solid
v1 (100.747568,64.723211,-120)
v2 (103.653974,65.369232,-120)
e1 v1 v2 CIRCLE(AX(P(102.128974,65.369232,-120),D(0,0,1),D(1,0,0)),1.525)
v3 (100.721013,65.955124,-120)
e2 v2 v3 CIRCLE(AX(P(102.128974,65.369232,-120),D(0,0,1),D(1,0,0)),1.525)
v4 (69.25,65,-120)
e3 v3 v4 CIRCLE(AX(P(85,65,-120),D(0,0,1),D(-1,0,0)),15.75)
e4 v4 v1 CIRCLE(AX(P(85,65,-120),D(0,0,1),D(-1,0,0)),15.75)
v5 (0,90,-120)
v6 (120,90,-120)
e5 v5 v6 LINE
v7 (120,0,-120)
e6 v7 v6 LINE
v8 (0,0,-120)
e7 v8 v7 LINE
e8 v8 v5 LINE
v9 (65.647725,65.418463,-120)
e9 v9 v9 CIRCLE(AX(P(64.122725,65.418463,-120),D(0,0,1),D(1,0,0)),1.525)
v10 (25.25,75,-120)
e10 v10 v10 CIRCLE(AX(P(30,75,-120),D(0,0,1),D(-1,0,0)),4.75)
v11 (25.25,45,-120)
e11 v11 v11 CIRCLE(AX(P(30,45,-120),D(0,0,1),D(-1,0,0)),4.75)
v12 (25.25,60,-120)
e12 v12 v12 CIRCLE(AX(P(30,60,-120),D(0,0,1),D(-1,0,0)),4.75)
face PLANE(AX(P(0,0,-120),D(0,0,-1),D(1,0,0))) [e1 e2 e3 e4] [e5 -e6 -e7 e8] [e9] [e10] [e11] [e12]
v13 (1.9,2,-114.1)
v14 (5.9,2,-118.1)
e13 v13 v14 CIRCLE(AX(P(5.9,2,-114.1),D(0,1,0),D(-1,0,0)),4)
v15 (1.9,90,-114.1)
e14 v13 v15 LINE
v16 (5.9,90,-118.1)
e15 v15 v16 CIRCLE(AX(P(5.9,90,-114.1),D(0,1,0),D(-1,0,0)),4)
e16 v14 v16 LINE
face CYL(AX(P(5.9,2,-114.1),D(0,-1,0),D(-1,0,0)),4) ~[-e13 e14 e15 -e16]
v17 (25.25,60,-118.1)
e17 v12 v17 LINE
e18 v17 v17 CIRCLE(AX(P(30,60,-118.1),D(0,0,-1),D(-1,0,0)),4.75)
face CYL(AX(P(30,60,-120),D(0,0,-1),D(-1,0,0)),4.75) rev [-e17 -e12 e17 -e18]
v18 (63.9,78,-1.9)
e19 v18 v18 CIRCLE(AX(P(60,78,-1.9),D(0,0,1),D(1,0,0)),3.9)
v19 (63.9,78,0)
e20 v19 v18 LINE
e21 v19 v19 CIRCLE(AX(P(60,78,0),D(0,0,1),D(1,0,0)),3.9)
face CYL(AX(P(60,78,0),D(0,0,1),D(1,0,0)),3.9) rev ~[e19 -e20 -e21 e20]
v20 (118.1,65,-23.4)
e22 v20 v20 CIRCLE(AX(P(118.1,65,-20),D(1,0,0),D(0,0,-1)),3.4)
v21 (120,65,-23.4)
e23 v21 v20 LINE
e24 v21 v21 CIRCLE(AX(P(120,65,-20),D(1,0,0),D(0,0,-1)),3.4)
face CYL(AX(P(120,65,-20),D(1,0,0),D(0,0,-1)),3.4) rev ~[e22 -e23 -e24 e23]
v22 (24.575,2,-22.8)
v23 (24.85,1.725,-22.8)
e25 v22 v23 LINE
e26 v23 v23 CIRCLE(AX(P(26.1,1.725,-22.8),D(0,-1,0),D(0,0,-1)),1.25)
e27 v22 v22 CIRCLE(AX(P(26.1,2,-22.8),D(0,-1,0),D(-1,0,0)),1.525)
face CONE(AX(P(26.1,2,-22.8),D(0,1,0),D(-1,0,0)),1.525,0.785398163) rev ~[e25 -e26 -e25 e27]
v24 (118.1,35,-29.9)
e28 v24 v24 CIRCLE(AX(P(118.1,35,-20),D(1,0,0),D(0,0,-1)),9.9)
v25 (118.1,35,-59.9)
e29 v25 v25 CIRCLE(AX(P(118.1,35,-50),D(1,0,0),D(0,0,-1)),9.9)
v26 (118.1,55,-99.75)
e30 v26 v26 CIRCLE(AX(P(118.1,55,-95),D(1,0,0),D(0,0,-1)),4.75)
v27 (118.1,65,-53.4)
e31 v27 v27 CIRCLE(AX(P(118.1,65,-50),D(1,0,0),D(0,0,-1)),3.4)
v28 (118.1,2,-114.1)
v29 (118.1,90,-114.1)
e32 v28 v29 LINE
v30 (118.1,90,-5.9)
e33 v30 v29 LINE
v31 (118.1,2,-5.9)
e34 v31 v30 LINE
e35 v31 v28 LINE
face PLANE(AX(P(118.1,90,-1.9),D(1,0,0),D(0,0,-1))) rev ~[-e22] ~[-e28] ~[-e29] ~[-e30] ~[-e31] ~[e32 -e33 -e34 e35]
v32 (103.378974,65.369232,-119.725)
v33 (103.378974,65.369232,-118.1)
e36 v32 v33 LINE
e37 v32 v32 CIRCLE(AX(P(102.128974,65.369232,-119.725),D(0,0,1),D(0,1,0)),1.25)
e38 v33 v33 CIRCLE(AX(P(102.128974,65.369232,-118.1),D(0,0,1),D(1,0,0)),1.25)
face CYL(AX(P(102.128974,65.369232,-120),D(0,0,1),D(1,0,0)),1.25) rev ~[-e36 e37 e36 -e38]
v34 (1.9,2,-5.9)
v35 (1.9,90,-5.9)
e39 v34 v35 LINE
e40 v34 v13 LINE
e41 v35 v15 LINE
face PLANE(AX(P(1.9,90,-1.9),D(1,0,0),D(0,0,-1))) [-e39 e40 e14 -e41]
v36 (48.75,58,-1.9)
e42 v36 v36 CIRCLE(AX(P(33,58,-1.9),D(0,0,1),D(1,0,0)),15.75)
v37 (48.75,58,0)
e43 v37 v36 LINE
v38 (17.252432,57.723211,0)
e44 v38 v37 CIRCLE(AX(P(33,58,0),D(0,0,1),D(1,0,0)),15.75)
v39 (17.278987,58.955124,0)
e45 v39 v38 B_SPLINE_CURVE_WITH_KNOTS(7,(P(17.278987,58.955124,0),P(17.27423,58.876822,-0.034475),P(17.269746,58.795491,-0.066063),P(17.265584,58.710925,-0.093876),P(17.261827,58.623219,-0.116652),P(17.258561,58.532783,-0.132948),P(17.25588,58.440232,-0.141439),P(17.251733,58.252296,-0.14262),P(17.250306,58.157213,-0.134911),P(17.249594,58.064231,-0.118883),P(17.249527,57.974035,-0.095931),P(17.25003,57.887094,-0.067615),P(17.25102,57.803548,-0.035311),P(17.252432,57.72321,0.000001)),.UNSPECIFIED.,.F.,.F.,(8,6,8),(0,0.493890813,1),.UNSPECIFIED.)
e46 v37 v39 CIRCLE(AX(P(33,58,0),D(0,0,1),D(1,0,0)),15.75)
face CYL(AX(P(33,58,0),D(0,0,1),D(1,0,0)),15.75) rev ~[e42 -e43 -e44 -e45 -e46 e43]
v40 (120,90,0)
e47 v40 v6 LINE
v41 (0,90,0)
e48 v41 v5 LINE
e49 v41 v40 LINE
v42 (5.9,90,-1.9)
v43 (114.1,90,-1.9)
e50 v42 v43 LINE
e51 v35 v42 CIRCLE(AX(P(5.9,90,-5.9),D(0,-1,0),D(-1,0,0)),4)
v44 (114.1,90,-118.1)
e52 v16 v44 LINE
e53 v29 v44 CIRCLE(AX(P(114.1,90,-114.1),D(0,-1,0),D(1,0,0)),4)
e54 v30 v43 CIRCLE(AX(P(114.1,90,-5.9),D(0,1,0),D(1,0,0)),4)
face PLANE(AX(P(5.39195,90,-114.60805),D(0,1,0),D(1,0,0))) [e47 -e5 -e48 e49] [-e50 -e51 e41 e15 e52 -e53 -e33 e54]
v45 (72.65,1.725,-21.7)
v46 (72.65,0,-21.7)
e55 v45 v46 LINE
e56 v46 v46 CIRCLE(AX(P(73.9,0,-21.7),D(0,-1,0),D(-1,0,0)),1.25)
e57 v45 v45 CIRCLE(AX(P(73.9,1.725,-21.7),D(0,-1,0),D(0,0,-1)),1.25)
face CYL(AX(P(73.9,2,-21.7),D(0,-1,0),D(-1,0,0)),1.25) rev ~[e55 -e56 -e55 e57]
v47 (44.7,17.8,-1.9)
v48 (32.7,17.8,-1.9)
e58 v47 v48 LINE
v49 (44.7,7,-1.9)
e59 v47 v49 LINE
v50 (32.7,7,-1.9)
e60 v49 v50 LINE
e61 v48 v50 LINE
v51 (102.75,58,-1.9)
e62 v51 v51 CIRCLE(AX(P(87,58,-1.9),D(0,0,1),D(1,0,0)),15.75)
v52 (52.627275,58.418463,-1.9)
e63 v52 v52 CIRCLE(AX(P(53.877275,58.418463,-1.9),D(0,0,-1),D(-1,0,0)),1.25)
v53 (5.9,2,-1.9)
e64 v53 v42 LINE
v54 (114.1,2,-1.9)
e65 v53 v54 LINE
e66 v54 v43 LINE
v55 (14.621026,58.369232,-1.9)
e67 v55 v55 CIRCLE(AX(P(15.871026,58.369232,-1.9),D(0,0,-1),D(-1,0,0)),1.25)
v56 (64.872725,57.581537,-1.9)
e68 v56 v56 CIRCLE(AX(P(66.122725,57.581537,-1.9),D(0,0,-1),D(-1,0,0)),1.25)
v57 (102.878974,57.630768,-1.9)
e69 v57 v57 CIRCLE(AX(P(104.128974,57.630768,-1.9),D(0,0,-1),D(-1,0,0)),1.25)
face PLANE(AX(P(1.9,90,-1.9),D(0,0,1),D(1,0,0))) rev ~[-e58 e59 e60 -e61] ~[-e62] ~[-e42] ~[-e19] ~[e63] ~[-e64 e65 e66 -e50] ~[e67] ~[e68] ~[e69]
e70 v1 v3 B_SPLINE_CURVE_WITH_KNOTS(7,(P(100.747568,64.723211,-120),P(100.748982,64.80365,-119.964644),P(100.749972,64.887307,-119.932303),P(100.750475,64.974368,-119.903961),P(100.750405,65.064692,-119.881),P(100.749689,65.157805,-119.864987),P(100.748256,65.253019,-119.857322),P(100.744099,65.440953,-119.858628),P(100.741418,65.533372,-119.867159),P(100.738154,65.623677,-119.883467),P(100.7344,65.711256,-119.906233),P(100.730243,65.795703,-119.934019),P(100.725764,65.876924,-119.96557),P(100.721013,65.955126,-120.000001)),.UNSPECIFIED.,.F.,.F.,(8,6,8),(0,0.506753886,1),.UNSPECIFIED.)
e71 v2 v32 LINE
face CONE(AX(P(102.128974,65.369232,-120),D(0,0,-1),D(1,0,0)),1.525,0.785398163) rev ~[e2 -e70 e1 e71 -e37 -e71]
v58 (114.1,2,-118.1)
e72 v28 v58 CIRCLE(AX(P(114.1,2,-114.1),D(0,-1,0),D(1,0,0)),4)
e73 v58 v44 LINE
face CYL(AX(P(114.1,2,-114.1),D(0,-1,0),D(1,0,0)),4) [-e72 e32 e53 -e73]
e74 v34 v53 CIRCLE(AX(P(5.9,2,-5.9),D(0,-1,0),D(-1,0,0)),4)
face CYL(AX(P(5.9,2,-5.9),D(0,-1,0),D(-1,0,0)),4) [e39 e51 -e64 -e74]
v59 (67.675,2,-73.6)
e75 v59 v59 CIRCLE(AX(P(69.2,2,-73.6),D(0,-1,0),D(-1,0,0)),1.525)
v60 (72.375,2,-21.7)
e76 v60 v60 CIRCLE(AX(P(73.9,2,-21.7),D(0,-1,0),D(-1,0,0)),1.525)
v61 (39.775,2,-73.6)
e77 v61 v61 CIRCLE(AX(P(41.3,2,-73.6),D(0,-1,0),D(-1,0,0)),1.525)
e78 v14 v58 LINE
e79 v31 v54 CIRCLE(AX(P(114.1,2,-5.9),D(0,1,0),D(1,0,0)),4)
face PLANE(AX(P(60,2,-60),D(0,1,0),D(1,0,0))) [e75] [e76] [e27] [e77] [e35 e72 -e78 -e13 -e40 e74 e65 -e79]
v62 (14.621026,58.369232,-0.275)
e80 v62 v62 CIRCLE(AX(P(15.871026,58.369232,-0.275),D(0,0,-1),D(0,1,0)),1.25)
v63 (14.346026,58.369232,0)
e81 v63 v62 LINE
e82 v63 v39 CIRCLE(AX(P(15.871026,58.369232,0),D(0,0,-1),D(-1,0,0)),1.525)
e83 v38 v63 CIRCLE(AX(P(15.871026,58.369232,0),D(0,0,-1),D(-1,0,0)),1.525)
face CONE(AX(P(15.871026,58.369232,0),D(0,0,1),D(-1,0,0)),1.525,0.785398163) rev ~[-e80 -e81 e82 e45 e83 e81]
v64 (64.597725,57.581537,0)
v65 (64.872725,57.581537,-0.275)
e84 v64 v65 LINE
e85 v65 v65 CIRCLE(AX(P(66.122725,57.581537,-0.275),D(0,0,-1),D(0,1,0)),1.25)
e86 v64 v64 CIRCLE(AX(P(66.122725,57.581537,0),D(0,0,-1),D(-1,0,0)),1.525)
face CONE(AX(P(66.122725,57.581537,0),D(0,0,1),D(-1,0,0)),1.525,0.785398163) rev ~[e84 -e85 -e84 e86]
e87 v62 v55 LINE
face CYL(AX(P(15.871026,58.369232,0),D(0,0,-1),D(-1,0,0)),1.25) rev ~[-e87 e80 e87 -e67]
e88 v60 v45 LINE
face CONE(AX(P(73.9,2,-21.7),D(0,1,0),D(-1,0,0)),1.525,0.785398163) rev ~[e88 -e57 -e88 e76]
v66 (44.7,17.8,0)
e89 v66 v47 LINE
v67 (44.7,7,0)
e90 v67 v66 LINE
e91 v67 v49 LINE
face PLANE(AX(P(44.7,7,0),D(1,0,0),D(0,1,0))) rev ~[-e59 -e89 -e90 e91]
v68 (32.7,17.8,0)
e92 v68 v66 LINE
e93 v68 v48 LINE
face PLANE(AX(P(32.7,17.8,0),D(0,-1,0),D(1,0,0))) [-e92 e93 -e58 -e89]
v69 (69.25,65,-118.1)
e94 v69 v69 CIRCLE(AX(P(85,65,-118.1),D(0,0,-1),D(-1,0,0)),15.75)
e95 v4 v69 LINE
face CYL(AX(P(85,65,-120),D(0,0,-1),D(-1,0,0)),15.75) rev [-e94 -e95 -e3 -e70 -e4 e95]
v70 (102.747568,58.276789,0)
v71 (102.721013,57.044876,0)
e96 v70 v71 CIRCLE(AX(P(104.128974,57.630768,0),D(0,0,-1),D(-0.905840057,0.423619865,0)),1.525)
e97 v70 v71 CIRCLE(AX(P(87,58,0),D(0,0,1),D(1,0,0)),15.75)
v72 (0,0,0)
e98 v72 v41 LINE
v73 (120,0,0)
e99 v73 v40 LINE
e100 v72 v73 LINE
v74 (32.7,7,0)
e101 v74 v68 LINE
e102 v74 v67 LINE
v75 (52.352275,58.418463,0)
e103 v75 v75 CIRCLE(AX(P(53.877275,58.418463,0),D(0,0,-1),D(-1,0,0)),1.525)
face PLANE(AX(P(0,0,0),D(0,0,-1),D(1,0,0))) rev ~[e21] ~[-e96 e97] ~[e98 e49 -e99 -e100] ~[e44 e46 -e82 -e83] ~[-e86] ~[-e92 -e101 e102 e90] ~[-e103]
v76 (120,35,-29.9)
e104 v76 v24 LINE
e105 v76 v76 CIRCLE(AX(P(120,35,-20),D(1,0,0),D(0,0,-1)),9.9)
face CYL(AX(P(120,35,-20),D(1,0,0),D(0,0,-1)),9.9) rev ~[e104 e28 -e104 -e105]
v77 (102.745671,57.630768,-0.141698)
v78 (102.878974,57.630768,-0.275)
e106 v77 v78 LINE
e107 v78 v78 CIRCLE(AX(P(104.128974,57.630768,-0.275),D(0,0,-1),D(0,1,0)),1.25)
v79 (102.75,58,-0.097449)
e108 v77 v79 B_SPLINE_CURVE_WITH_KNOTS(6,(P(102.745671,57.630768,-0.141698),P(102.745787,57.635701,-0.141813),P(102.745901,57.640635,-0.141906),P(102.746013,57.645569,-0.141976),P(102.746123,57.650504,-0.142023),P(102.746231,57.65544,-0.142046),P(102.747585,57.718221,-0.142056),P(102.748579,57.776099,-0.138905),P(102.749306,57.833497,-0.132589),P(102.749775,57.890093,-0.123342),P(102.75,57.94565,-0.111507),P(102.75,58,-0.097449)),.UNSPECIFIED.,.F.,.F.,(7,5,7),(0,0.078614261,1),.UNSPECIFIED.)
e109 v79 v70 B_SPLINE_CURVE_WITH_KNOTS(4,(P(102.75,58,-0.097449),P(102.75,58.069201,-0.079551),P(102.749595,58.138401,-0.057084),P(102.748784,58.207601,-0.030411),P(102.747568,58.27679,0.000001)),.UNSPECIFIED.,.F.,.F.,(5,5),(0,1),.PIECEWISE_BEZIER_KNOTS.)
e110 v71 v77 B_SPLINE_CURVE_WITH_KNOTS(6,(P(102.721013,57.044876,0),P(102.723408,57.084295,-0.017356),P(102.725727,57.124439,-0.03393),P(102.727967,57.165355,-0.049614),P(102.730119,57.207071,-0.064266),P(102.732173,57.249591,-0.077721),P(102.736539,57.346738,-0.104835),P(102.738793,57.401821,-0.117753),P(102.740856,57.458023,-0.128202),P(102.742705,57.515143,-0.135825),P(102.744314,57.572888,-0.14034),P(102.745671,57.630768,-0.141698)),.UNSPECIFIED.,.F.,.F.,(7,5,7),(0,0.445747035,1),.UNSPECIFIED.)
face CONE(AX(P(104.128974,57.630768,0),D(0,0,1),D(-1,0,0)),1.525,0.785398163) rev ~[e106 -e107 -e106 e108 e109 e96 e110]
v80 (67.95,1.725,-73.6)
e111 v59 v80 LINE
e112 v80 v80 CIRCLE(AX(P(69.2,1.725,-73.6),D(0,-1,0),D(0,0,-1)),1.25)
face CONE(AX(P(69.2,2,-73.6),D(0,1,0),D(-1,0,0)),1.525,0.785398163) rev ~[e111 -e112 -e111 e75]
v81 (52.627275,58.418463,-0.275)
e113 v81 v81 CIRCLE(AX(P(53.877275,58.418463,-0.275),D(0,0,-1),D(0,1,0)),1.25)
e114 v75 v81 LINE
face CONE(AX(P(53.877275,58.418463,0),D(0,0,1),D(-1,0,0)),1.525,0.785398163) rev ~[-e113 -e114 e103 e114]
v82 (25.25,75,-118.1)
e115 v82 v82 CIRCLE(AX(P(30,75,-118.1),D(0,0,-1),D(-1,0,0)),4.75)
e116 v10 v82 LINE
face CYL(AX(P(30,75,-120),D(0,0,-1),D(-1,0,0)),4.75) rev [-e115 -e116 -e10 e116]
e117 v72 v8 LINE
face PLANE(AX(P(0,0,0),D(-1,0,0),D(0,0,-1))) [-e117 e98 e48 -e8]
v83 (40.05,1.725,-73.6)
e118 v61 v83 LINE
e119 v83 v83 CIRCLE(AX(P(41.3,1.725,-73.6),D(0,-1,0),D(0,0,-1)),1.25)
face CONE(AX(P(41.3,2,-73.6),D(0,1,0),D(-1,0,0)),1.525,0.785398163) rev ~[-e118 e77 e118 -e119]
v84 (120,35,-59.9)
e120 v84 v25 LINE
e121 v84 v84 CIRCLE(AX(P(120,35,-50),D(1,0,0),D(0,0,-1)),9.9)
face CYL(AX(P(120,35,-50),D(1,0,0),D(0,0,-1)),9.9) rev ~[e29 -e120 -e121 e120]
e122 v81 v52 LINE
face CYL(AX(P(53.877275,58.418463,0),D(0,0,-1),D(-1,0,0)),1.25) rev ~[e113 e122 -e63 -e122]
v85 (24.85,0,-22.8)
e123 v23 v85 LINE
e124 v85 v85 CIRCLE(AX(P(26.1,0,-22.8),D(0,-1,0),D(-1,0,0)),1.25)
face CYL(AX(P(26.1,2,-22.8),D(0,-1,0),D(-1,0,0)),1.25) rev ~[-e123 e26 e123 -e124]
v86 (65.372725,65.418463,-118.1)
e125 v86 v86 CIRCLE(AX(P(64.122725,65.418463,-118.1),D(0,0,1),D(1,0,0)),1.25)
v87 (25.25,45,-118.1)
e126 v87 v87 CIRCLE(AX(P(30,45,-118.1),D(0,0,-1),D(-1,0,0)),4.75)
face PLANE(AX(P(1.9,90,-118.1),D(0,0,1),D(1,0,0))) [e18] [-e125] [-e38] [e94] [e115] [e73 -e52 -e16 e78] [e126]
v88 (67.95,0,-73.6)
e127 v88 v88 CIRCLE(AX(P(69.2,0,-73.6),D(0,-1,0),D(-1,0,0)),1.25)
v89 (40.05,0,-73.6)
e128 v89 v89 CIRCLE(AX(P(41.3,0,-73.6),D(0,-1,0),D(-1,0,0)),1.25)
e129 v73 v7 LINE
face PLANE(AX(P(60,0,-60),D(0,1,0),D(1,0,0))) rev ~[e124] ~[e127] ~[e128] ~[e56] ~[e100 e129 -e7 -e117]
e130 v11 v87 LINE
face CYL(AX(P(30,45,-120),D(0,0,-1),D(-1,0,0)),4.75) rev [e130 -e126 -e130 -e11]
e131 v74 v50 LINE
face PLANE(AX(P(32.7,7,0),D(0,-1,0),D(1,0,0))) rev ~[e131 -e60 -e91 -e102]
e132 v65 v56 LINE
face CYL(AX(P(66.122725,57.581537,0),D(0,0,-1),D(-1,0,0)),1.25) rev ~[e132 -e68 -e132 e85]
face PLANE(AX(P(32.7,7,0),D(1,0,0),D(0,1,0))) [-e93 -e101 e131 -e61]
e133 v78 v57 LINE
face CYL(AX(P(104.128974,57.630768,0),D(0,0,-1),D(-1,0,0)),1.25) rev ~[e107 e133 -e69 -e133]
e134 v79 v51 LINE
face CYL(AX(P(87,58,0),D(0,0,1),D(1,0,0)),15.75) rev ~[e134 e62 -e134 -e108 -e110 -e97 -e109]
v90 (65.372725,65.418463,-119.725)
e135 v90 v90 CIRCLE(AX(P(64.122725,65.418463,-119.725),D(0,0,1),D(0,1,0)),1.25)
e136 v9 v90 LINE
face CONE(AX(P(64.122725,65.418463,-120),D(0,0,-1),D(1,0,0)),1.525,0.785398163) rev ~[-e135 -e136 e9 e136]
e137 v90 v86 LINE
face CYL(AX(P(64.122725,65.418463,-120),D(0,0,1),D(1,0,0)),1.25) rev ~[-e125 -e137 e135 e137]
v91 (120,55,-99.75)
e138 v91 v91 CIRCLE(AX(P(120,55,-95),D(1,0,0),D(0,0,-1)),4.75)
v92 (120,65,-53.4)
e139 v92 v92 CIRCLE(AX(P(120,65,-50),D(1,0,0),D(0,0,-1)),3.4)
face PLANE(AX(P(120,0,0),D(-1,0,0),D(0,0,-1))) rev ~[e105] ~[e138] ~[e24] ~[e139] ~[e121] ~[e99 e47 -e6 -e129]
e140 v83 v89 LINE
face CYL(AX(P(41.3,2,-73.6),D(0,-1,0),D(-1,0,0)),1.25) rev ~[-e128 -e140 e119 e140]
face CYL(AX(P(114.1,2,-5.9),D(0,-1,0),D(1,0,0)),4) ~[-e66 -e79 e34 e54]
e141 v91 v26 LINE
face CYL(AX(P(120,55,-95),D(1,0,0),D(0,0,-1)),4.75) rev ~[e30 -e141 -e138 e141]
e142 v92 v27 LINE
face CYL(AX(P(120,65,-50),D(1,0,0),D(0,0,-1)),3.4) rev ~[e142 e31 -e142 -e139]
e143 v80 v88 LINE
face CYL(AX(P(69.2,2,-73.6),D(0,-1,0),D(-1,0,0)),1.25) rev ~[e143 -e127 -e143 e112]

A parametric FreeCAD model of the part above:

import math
import FreeCAD as App
import Part
import Sketcher
Q = App.Units.Quantity


def add_polygon(sketch, points):
    """Adds a closed chain of lines whose ends are joined by coincident constraints."""
    first, n = sketch.GeometryCount, len(points)
    for a, b in zip(points, points[1:] + points[:1]):
        sketch.addGeometry(Part.LineSegment(App.Vector(*a, 0), App.Vector(*b, 0)), False)
    for i in range(n):
        sketch.addConstraint(Sketcher.Constraint("Coincident", first + i, 2, first + (i + 1) % n, 1))

doc = App.newDocument("Part")
body = doc.addObject("PartDesign::Body", "Body")

sketch1 = body.newObject("Sketcher::SketchObject", "Sketch")
sketch1.AttachmentSupport = (doc.getObject("XZ_Plane"), [""])
sketch1.MapMode = "FlatFace"
add_polygon(sketch1, [(0, -120), (0, 0), (120, 0), (120, -120)])
sketch1.addConstraint([
    Sketcher.Constraint("Vertical", 0),
    Sketcher.Constraint("Horizontal", 1),
    Sketcher.Constraint("Vertical", 2),
    Sketcher.Constraint("Horizontal", 3),
    Sketcher.Constraint("Coincident", 0, 2, -1, 1),
    Sketcher.Constraint("Equal", 3, 0),
    Sketcher.Constraint("DistanceX", 1, 1, 1, 2, Q("120 mm")),
])
pad1 = body.newObject("PartDesign::Pad", "Pad")
pad1.Profile = sketch1
pad1.Length = 90
pad1.Reversed = True

sketch2 = body.newObject("Sketcher::SketchObject", "Sketch001")
sketch2.AttachmentSupport = (doc.getObject("XZ_Plane"), [""])
sketch2.MapMode = "FlatFace"
sketch2.AttachmentOffset = App.Placement(App.Vector(0, 0, -90), App.Rotation())
add_polygon(sketch2, [(2, -118), (2, -2), (118, -2), (118, -118)])
sketch2.addConstraint([
    Sketcher.Constraint("Vertical", 0),
    Sketcher.Constraint("Horizontal", 1),
    Sketcher.Constraint("Vertical", 2),
    Sketcher.Constraint("Horizontal", 3),
    Sketcher.Constraint("Equal", 3, 0),
    Sketcher.Constraint("DistanceX", 1, 1, 1, 2, Q("116.2 mm")),
    Sketcher.Constraint("DistanceX", -1, 1, 0, 2, Q("1.9 mm")),
    Sketcher.Constraint("DistanceY", 0, 2, -1, 1, Q("1.9 mm")),
])
pocket1 = body.newObject("PartDesign::Pocket", "Pocket")
pocket1.Profile = sketch2
pocket1.Length = 88
pocket1.Reversed = True

sketch3 = body.newObject("Sketcher::SketchObject", "Sketch002")
sketch3.AttachmentSupport = (doc.getObject("XZ_Plane"), [""])
sketch3.MapMode = "FlatFace"
sketch3.AttachmentOffset = App.Placement(App.Vector(0, 0, -2), App.Rotation())
sketch3.addGeometry([
    Part.LineSegment(App.Vector(5.9, -118.1, 0), App.Vector(1.9, -118.1, 0)),
    Part.LineSegment(App.Vector(1.9, -118.1, 0), App.Vector(1.9, -114.1, 0)),
    Part.ArcOfCircle(Part.Circle(App.Vector(5.9, -114.1, 0), App.Vector(0, 0, 1), 4), math.radians(-90), math.radians(180)),
    Part.LineSegment(App.Vector(118.1, -118.1, 0), App.Vector(114.1, -118.1, 0)),
    Part.ArcOfCircle(Part.Circle(App.Vector(114.1, -114.1, 0), App.Vector(0, 0, 1), 4), math.radians(0), math.radians(270)),
    Part.LineSegment(App.Vector(118.1, -114.1, 0), App.Vector(118.1, -118.1, 0)),
    Part.LineSegment(App.Vector(118.1, -1.9, 0), App.Vector(118.1, -5.9, 0)),
    Part.ArcOfCircle(Part.Circle(App.Vector(114.1, -5.9, 0), App.Vector(0, 0, 1), 4), math.radians(90), math.radians(360)),
    Part.LineSegment(App.Vector(114.1, -1.9, 0), App.Vector(118.1, -1.9, 0)),
    Part.LineSegment(App.Vector(1.9, -5.9, 0), App.Vector(1.9, -1.9, 0)),
    Part.LineSegment(App.Vector(1.9, -1.9, 0), App.Vector(5.9, -1.9, 0)),
    Part.ArcOfCircle(Part.Circle(App.Vector(5.9, -5.9, 0), App.Vector(0, 0, 1), 4), math.radians(180), math.radians(450)),
], False)
sketch3.addConstraint([
    Sketcher.Constraint("Coincident", 0, 2, 1, 1),
    Sketcher.Constraint("Tangent", 1, 2, 2, 2),
    Sketcher.Constraint("Tangent", 2, 1, 0, 1),
    Sketcher.Constraint("Tangent", 3, 2, 4, 2),
    Sketcher.Constraint("Tangent", 4, 1, 5, 1),
    Sketcher.Constraint("Coincident", 5, 2, 3, 1),
    Sketcher.Constraint("Tangent", 6, 2, 7, 2),
    Sketcher.Constraint("Tangent", 7, 1, 8, 1),
    Sketcher.Constraint("Coincident", 8, 2, 6, 1),
    Sketcher.Constraint("Coincident", 9, 2, 10, 1),
    Sketcher.Constraint("Tangent", 10, 2, 11, 2),
    Sketcher.Constraint("Tangent", 11, 1, 9, 1),
    Sketcher.Constraint("Horizontal", 0),
    Sketcher.Constraint("Vertical", 1),
    Sketcher.Constraint("Horizontal", 3),
    Sketcher.Constraint("Vertical", 5),
    Sketcher.Constraint("Vertical", 6),
    Sketcher.Constraint("Horizontal", 8),
    Sketcher.Constraint("Vertical", 9),
    Sketcher.Constraint("Horizontal", 10),
    Sketcher.Constraint("Equal", 2, 4),
    Sketcher.Constraint("Equal", 4, 7),
    Sketcher.Constraint("Equal", 7, 11),
    Sketcher.Constraint("Horizontal", 2, 3, 4, 3),
    Sketcher.Constraint("Horizontal", 7, 3, 11, 3),
    Sketcher.Constraint("Vertical", 4, 3, 7, 3),
    Sketcher.Constraint("Vertical", 2, 3, 11, 3),
    Sketcher.Constraint("Radius", 2, Q("4 mm")),
    Sketcher.Constraint("DistanceX", -1, 1, 2, 3, Q("5.9 mm")),
    Sketcher.Constraint("DistanceY", 2, 3, -1, 1, Q("114.1 mm")),
    Sketcher.Constraint("DistanceX", -1, 1, 4, 3, Q("114.1 mm")),
    Sketcher.Constraint("DistanceY", 7, 3, -1, 1, Q("5.9 mm")),
])
pad2 = body.newObject("PartDesign::Pad", "Pad001")
pad2.Profile = sketch3
pad2.Length = 88
pad2.Reversed = True

sketch4 = body.newObject("Sketcher::SketchObject", "Sketch003")
sketch4.AttachmentSupport = (doc.getObject("XY_Plane"), [""])
sketch4.MapMode = "FlatFace"
sketch4.AttachmentOffset = App.Placement(App.Vector(0, 0, -120), App.Rotation())
sketch4.addGeometry(Part.Circle(App.Vector(30, 75, 0), App.Vector(0, 0, 1), 4.8), False)
sketch4.addConstraint([
    Sketcher.Constraint("Diameter", 0, Q("9.5 mm")),
    Sketcher.Constraint("DistanceX", -1, 1, 0, 3, Q("30 mm")),
    Sketcher.Constraint("DistanceY", -1, 1, 0, 3, Q("75 mm")),
])
pocket2 = body.newObject("PartDesign::Pocket", "Pocket001")
pocket2.Profile = sketch4
pocket2.Type = "UpToFirst"
pocket2.Reversed = True

sketch5 = body.newObject("Sketcher::SketchObject", "Sketch004")
sketch5.AttachmentSupport = (doc.getObject("XY_Plane"), [""])
sketch5.MapMode = "FlatFace"
sketch5.AttachmentOffset = App.Placement(App.Vector(0, 0, -120), App.Rotation())
sketch5.addGeometry(Part.Circle(App.Vector(85, 65, 0), App.Vector(0, 0, 1), 16), False)
sketch5.addConstraint([
    Sketcher.Constraint("Diameter", 0, Q("31.5 mm")),
    Sketcher.Constraint("DistanceX", -1, 1, 0, 3, Q("85 mm")),
    Sketcher.Constraint("DistanceY", -1, 1, 0, 3, Q("65 mm")),
])
pocket3 = body.newObject("PartDesign::Pocket", "Pocket002")
pocket3.Profile = sketch5
pocket3.Type = "UpToFirst"
pocket3.Reversed = True

sketch6 = body.newObject("Sketcher::SketchObject", "Sketch005")
sketch6.AttachmentSupport = (doc.getObject("XY_Plane"), [""])
sketch6.MapMode = "FlatFace"
sketch6.AttachmentOffset = App.Placement(App.Vector(0, 0, -120), App.Rotation())
sketch6.addGeometry(Part.Circle(App.Vector(30, 60, 0), App.Vector(0, 0, 1), 4.8), False)
sketch6.addConstraint([
    Sketcher.Constraint("Diameter", 0, Q("9.5 mm")),
    Sketcher.Constraint("DistanceX", -1, 1, 0, 3, Q("30 mm")),
    Sketcher.Constraint("DistanceY", -1, 1, 0, 3, Q("60 mm")),
])
pocket4 = body.newObject("PartDesign::Pocket", "Pocket003")
pocket4.Profile = sketch6
pocket4.Type = "UpToFirst"
pocket4.Reversed = True

sketch7 = body.newObject("Sketcher::SketchObject", "Sketch006")
sketch7.AttachmentSupport = (doc.getObject("XY_Plane"), [""])
sketch7.MapMode = "FlatFace"
sketch7.AttachmentOffset = App.Placement(App.Vector(0, 0, -120), App.Rotation())
sketch7.addGeometry(Part.Circle(App.Vector(30, 45, 0), App.Vector(0, 0, 1), 4.8), False)
sketch7.addConstraint([
    Sketcher.Constraint("Diameter", 0, Q("9.5 mm")),
    Sketcher.Constraint("DistanceX", -1, 1, 0, 3, Q("30 mm")),
    Sketcher.Constraint("DistanceY", -1, 1, 0, 3, Q("45 mm")),
])
pocket5 = body.newObject("PartDesign::Pocket", "Pocket004")
pocket5.Profile = sketch7
pocket5.Type = "UpToFirst"
pocket5.Reversed = True

sketch8 = body.newObject("Sketcher::SketchObject", "Sketch007")
sketch8.AttachmentSupport = (doc.getObject("XY_Plane"), [""])
sketch8.MapMode = "FlatFace"
sketch8.addGeometry(Part.Circle(App.Vector(60, 78, 0), App.Vector(0, 0, 1), 3.9), False)
sketch8.addConstraint([
    Sketcher.Constraint("Diameter", 0, Q("7.8 mm")),
    Sketcher.Constraint("DistanceX", -1, 1, 0, 3, Q("60 mm")),
    Sketcher.Constraint("DistanceY", -1, 1, 0, 3, Q("78 mm")),
])
pocket6 = body.newObject("PartDesign::Pocket", "Pocket005")
pocket6.Profile = sketch8
pocket6.Type = "UpToFirst"

sketch9 = body.newObject("Sketcher::SketchObject", "Sketch008")
sketch9.AttachmentSupport = (doc.getObject("XY_Plane"), [""])
sketch9.MapMode = "FlatFace"
sketch9.addGeometry(Part.Circle(App.Vector(33, 58, 0), App.Vector(0, 0, 1), 16), False)
sketch9.addConstraint([
    Sketcher.Constraint("Diameter", 0, Q("31.5 mm")),
    Sketcher.Constraint("DistanceX", -1, 1, 0, 3, Q("33 mm")),
    Sketcher.Constraint("DistanceY", -1, 1, 0, 3, Q("58 mm")),
])
pocket7 = body.newObject("PartDesign::Pocket", "Pocket006")
pocket7.Profile = sketch9
pocket7.Type = "UpToFirst"

sketch10 = body.newObject("Sketcher::SketchObject", "Sketch009")
sketch10.AttachmentSupport = (doc.getObject("XY_Plane"), [""])
sketch10.MapMode = "FlatFace"
sketch10.addGeometry(Part.Circle(App.Vector(87, 58, 0), App.Vector(0, 0, 1), 16), False)
sketch10.addConstraint([
    Sketcher.Constraint("Diameter", 0, Q("31.5 mm")),
    Sketcher.Constraint("DistanceX", -1, 1, 0, 3, Q("87 mm")),
    Sketcher.Constraint("DistanceY", -1, 1, 0, 3, Q("58 mm")),
])
pocket8 = body.newObject("PartDesign::Pocket", "Pocket007")
pocket8.Profile = sketch10
pocket8.Type = "UpToFirst"

sketch11 = body.newObject("Sketcher::SketchObject", "Sketch010")
sketch11.AttachmentSupport = (doc.getObject("XY_Plane"), [""])
sketch11.MapMode = "FlatFace"
add_polygon(sketch11, [(33, 18), (33, 7), (45, 7), (45, 18)])
sketch11.addConstraint([
    Sketcher.Constraint("Vertical", 0),
    Sketcher.Constraint("Horizontal", 1),
    Sketcher.Constraint("Vertical", 2),
    Sketcher.Constraint("Horizontal", 3),
    Sketcher.Constraint("DistanceX", 1, 1, 1, 2, Q("12 mm")),
    Sketcher.Constraint("DistanceY", 0, 2, 0, 1, Q("10.8 mm")),
    Sketcher.Constraint("DistanceY", -1, 1, 0, 2, Q("7 mm")),
    Sketcher.Constraint("DistanceX", -1, 1, 0, 2, Q("32.7 mm")),
])
pocket9 = body.newObject("PartDesign::Pocket", "Pocket008")
pocket9.Profile = sketch11
pocket9.Type = "UpToFirst"

sketch12 = body.newObject("Sketcher::SketchObject", "Sketch011")
sketch12.AttachmentSupport = (doc.getObject("YZ_Plane"), [""])
sketch12.MapMode = "FlatFace"
sketch12.AttachmentOffset = App.Placement(App.Vector(0, 0, 120), App.Rotation())
sketch12.addGeometry(Part.Circle(App.Vector(55, -95, 0), App.Vector(0, 0, 1), 4.8), False)
sketch12.addConstraint([
    Sketcher.Constraint("Diameter", 0, Q("9.5 mm")),
    Sketcher.Constraint("DistanceX", -1, 1, 0, 3, Q("55 mm")),
    Sketcher.Constraint("DistanceY", 0, 3, -1, 1, Q("95 mm")),
])
pocket10 = body.newObject("PartDesign::Pocket", "Pocket009")
pocket10.Profile = sketch12
pocket10.Type = "UpToFirst"

sketch13 = body.newObject("Sketcher::SketchObject", "Sketch012")
sketch13.AttachmentSupport = (doc.getObject("YZ_Plane"), [""])
sketch13.MapMode = "FlatFace"
sketch13.AttachmentOffset = App.Placement(App.Vector(0, 0, 120), App.Rotation())
sketch13.addGeometry(Part.Circle(App.Vector(65, -20, 0), App.Vector(0, 0, 1), 3.4), False)
sketch13.addConstraint([
    Sketcher.Constraint("Diameter", 0, Q("6.8 mm")),
    Sketcher.Constraint("DistanceX", -1, 1, 0, 3, Q("65 mm")),
    Sketcher.Constraint("DistanceY", 0, 3, -1, 1, Q("20 mm")),
])
pocket11 = body.newObject("PartDesign::Pocket", "Pocket010")
pocket11.Profile = sketch13
pocket11.Type = "UpToFirst"

sketch14 = body.newObject("Sketcher::SketchObject", "Sketch013")
sketch14.AttachmentSupport = (doc.getObject("YZ_Plane"), [""])
sketch14.MapMode = "FlatFace"
sketch14.AttachmentOffset = App.Placement(App.Vector(0, 0, 120), App.Rotation())
sketch14.addGeometry(Part.Circle(App.Vector(65, -50, 0), App.Vector(0, 0, 1), 3.4), False)
sketch14.addConstraint([
    Sketcher.Constraint("Diameter", 0, Q("6.8 mm")),
    Sketcher.Constraint("DistanceX", -1, 1, 0, 3, Q("65 mm")),
    Sketcher.Constraint("DistanceY", 0, 3, -1, 1, Q("50 mm")),
])
pocket12 = body.newObject("PartDesign::Pocket", "Pocket011")
pocket12.Profile = sketch14
pocket12.Type = "UpToFirst"

sketch15 = body.newObject("Sketcher::SketchObject", "Sketch014")
sketch15.AttachmentSupport = (doc.getObject("YZ_Plane"), [""])
sketch15.MapMode = "FlatFace"
sketch15.AttachmentOffset = App.Placement(App.Vector(0, 0, 120), App.Rotation())
sketch15.addGeometry(Part.Circle(App.Vector(35, -20, 0), App.Vector(0, 0, 1), 10), False)
sketch15.addConstraint([
    Sketcher.Constraint("Diameter", 0, Q("19.8 mm")),
    Sketcher.Constraint("DistanceX", -1, 1, 0, 3, Q("35 mm")),
    Sketcher.Constraint("DistanceY", 0, 3, -1, 1, Q("20 mm")),
])
pocket13 = body.newObject("PartDesign::Pocket", "Pocket012")
pocket13.Profile = sketch15
pocket13.Type = "UpToFirst"

sketch16 = body.newObject("Sketcher::SketchObject", "Sketch015")
sketch16.AttachmentSupport = (doc.getObject("YZ_Plane"), [""])
sketch16.MapMode = "FlatFace"
sketch16.AttachmentOffset = App.Placement(App.Vector(0, 0, 120), App.Rotation())
sketch16.addGeometry(Part.Circle(App.Vector(35, -50, 0), App.Vector(0, 0, 1), 10), False)
sketch16.addConstraint([
    Sketcher.Constraint("Diameter", 0, Q("19.8 mm")),
    Sketcher.Constraint("DistanceX", -1, 1, 0, 3, Q("35 mm")),
    Sketcher.Constraint("DistanceY", 0, 3, -1, 1, Q("50 mm")),
])
pocket14 = body.newObject("PartDesign::Pocket", "Pocket013")
pocket14.Profile = sketch16
pocket14.Type = "UpToFirst"

sketch17 = body.newObject("Sketcher::SketchObject", "Sketch016")
sketch17.AttachmentSupport = (doc.getObject("XZ_Plane"), [""])
sketch17.MapMode = "FlatFace"
sketch17.AttachmentOffset = App.Placement(App.Vector(0, 0, -2), App.Rotation())
sketch17.addGeometry([
    Part.Circle(App.Vector(26.1, -22.8, 0), App.Vector(0, 0, 1), 1.2),
    Part.Circle(App.Vector(41.3, -73.6, 0), App.Vector(0, 0, 1), 1.2),
    Part.Circle(App.Vector(69.2, -73.6, 0), App.Vector(0, 0, 1), 1.2),
    Part.Circle(App.Vector(73.9, -21.7, 0), App.Vector(0, 0, 1), 1.2),
], False)
sketch17.addConstraint([
    Sketcher.Constraint("Equal", 0, 1),
    Sketcher.Constraint("Equal", 1, 2),
    Sketcher.Constraint("Equal", 2, 3),
    Sketcher.Constraint("Horizontal", 1, 3, 2, 3),
    Sketcher.Constraint("Diameter", 0, Q("2.5 mm")),
    Sketcher.Constraint("DistanceX", -1, 1, 0, 3, Q("26.1 mm")),
    Sketcher.Constraint("DistanceY", 0, 3, -1, 1, Q("22.8 mm")),
    Sketcher.Constraint("DistanceX", -1, 1, 1, 3, Q("41.3 mm")),
    Sketcher.Constraint("DistanceY", 1, 3, -1, 1, Q("73.6 mm")),
    Sketcher.Constraint("DistanceX", -1, 1, 2, 3, Q("69.2 mm")),
    Sketcher.Constraint("DistanceX", -1, 1, 3, 3, Q("73.9 mm")),
    Sketcher.Constraint("DistanceY", 3, 3, -1, 1, Q("21.7 mm")),
])
doc.recompute()
hole = body.newObject("PartDesign::Hole", "Hole")
hole.Profile = sketch17
hole.ThreadType = "None"
hole.Diameter = 2.5
hole.DepthType = "ThroughAll"
hole.HoleCutType = "Countersink"
hole.HoleCutDiameter = 3.05
hole.HoleCutCountersinkAngle = 90
hole.Reversed = True

sketch18 = body.newObject("Sketcher::SketchObject", "Sketch017")
sketch18.AttachmentSupport = (doc.getObject("XY_Plane"), [""])
sketch18.MapMode = "FlatFace"
sketch18.addGeometry([
    Part.Circle(App.Vector(15.9, 58.4, 0), App.Vector(0, 0, 1), 1.2),
    Part.Circle(App.Vector(53.9, 58.4, 0), App.Vector(0, 0, 1), 1.2),
    Part.Circle(App.Vector(66.1, 57.6, 0), App.Vector(0, 0, 1), 1.2),
    Part.Circle(App.Vector(104.1, 57.6, 0), App.Vector(0, 0, 1), 1.2),
], False)
sketch18.addConstraint([
    Sketcher.Constraint("Equal", 0, 1),
    Sketcher.Constraint("Equal", 1, 2),
    Sketcher.Constraint("Equal", 2, 3),
    Sketcher.Constraint("Diameter", 0, Q("2.5 mm")),
    Sketcher.Constraint("DistanceX", 0, 3, 2, 3, Q("50.251699 mm")),
    Sketcher.Constraint("DistanceX", 1, 3, 3, 3, Q("50.251699 mm")),
    Sketcher.Constraint("DistanceY", -1, 1, 0, 3, Q("58.369232 mm")),
    Sketcher.Constraint("DistanceY", -1, 1, 3, 3, Q("57.630768 mm")),
    Sketcher.Constraint("DistanceX", 0, 3, 1, 3, Q("38.006248 mm")),
    Sketcher.Constraint("DistanceY", 0, 3, 1, 3, Q("0.049231 mm")),
    Sketcher.Constraint("DistanceY", 2, 3, 3, 3, Q("0.049231 mm")),
    Sketcher.Constraint("DistanceX", -1, 1, 0, 3, Q("15.871026 mm")),
])
doc.recompute()
hole2 = body.newObject("PartDesign::Hole", "Hole001")
hole2.Profile = sketch18
hole2.ThreadType = "None"
hole2.Diameter = 2.5
hole2.DepthType = "Dimension"
hole2.Depth = 7.5
hole2.DrillPoint = "Angled"
hole2.DrillPointAngle = 118
hole2.HoleCutType = "Countersink"
hole2.HoleCutDiameter = 3.05
hole2.HoleCutCountersinkAngle = 90

sketch19 = body.newObject("Sketcher::SketchObject", "Sketch018")
sketch19.AttachmentSupport = (doc.getObject("XY_Plane"), [""])
sketch19.MapMode = "FlatFace"
sketch19.AttachmentOffset = App.Placement(App.Vector(0, 0, -120), App.Rotation())
sketch19.addGeometry([
    Part.Circle(App.Vector(102.1, 65.4, 0), App.Vector(0, 0, 1), 1.2),
    Part.Circle(App.Vector(64.1, 65.4, 0), App.Vector(0, 0, 1), 1.2),
], False)
sketch19.addConstraint([
    Sketcher.Constraint("Equal", 0, 1),
    Sketcher.Constraint("Diameter", 0, Q("2.5 mm")),
    Sketcher.Constraint("DistanceY", -1, 1, 0, 3, Q("65.369232 mm")),
    Sketcher.Constraint("DistanceX", 1, 3, 0, 3, Q("38.006248 mm")),
    Sketcher.Constraint("DistanceY", 0, 3, 1, 3, Q("0.049231 mm")),
    Sketcher.Constraint("DistanceX", -1, 1, 0, 3, Q("102.128974 mm")),
])
doc.recompute()
hole3 = body.newObject("PartDesign::Hole", "Hole002")
hole3.Profile = sketch19
hole3.ThreadType = "None"
hole3.Diameter = 2.5
hole3.DepthType = "Dimension"
hole3.Depth = 7.5
hole3.DrillPoint = "Angled"
hole3.DrillPointAngle = 118
hole3.HoleCutType = "Countersink"
hole3.HoleCutDiameter = 3.05
hole3.HoleCutCountersinkAngle = 90
hole3.Reversed = True

doc.recompute()
